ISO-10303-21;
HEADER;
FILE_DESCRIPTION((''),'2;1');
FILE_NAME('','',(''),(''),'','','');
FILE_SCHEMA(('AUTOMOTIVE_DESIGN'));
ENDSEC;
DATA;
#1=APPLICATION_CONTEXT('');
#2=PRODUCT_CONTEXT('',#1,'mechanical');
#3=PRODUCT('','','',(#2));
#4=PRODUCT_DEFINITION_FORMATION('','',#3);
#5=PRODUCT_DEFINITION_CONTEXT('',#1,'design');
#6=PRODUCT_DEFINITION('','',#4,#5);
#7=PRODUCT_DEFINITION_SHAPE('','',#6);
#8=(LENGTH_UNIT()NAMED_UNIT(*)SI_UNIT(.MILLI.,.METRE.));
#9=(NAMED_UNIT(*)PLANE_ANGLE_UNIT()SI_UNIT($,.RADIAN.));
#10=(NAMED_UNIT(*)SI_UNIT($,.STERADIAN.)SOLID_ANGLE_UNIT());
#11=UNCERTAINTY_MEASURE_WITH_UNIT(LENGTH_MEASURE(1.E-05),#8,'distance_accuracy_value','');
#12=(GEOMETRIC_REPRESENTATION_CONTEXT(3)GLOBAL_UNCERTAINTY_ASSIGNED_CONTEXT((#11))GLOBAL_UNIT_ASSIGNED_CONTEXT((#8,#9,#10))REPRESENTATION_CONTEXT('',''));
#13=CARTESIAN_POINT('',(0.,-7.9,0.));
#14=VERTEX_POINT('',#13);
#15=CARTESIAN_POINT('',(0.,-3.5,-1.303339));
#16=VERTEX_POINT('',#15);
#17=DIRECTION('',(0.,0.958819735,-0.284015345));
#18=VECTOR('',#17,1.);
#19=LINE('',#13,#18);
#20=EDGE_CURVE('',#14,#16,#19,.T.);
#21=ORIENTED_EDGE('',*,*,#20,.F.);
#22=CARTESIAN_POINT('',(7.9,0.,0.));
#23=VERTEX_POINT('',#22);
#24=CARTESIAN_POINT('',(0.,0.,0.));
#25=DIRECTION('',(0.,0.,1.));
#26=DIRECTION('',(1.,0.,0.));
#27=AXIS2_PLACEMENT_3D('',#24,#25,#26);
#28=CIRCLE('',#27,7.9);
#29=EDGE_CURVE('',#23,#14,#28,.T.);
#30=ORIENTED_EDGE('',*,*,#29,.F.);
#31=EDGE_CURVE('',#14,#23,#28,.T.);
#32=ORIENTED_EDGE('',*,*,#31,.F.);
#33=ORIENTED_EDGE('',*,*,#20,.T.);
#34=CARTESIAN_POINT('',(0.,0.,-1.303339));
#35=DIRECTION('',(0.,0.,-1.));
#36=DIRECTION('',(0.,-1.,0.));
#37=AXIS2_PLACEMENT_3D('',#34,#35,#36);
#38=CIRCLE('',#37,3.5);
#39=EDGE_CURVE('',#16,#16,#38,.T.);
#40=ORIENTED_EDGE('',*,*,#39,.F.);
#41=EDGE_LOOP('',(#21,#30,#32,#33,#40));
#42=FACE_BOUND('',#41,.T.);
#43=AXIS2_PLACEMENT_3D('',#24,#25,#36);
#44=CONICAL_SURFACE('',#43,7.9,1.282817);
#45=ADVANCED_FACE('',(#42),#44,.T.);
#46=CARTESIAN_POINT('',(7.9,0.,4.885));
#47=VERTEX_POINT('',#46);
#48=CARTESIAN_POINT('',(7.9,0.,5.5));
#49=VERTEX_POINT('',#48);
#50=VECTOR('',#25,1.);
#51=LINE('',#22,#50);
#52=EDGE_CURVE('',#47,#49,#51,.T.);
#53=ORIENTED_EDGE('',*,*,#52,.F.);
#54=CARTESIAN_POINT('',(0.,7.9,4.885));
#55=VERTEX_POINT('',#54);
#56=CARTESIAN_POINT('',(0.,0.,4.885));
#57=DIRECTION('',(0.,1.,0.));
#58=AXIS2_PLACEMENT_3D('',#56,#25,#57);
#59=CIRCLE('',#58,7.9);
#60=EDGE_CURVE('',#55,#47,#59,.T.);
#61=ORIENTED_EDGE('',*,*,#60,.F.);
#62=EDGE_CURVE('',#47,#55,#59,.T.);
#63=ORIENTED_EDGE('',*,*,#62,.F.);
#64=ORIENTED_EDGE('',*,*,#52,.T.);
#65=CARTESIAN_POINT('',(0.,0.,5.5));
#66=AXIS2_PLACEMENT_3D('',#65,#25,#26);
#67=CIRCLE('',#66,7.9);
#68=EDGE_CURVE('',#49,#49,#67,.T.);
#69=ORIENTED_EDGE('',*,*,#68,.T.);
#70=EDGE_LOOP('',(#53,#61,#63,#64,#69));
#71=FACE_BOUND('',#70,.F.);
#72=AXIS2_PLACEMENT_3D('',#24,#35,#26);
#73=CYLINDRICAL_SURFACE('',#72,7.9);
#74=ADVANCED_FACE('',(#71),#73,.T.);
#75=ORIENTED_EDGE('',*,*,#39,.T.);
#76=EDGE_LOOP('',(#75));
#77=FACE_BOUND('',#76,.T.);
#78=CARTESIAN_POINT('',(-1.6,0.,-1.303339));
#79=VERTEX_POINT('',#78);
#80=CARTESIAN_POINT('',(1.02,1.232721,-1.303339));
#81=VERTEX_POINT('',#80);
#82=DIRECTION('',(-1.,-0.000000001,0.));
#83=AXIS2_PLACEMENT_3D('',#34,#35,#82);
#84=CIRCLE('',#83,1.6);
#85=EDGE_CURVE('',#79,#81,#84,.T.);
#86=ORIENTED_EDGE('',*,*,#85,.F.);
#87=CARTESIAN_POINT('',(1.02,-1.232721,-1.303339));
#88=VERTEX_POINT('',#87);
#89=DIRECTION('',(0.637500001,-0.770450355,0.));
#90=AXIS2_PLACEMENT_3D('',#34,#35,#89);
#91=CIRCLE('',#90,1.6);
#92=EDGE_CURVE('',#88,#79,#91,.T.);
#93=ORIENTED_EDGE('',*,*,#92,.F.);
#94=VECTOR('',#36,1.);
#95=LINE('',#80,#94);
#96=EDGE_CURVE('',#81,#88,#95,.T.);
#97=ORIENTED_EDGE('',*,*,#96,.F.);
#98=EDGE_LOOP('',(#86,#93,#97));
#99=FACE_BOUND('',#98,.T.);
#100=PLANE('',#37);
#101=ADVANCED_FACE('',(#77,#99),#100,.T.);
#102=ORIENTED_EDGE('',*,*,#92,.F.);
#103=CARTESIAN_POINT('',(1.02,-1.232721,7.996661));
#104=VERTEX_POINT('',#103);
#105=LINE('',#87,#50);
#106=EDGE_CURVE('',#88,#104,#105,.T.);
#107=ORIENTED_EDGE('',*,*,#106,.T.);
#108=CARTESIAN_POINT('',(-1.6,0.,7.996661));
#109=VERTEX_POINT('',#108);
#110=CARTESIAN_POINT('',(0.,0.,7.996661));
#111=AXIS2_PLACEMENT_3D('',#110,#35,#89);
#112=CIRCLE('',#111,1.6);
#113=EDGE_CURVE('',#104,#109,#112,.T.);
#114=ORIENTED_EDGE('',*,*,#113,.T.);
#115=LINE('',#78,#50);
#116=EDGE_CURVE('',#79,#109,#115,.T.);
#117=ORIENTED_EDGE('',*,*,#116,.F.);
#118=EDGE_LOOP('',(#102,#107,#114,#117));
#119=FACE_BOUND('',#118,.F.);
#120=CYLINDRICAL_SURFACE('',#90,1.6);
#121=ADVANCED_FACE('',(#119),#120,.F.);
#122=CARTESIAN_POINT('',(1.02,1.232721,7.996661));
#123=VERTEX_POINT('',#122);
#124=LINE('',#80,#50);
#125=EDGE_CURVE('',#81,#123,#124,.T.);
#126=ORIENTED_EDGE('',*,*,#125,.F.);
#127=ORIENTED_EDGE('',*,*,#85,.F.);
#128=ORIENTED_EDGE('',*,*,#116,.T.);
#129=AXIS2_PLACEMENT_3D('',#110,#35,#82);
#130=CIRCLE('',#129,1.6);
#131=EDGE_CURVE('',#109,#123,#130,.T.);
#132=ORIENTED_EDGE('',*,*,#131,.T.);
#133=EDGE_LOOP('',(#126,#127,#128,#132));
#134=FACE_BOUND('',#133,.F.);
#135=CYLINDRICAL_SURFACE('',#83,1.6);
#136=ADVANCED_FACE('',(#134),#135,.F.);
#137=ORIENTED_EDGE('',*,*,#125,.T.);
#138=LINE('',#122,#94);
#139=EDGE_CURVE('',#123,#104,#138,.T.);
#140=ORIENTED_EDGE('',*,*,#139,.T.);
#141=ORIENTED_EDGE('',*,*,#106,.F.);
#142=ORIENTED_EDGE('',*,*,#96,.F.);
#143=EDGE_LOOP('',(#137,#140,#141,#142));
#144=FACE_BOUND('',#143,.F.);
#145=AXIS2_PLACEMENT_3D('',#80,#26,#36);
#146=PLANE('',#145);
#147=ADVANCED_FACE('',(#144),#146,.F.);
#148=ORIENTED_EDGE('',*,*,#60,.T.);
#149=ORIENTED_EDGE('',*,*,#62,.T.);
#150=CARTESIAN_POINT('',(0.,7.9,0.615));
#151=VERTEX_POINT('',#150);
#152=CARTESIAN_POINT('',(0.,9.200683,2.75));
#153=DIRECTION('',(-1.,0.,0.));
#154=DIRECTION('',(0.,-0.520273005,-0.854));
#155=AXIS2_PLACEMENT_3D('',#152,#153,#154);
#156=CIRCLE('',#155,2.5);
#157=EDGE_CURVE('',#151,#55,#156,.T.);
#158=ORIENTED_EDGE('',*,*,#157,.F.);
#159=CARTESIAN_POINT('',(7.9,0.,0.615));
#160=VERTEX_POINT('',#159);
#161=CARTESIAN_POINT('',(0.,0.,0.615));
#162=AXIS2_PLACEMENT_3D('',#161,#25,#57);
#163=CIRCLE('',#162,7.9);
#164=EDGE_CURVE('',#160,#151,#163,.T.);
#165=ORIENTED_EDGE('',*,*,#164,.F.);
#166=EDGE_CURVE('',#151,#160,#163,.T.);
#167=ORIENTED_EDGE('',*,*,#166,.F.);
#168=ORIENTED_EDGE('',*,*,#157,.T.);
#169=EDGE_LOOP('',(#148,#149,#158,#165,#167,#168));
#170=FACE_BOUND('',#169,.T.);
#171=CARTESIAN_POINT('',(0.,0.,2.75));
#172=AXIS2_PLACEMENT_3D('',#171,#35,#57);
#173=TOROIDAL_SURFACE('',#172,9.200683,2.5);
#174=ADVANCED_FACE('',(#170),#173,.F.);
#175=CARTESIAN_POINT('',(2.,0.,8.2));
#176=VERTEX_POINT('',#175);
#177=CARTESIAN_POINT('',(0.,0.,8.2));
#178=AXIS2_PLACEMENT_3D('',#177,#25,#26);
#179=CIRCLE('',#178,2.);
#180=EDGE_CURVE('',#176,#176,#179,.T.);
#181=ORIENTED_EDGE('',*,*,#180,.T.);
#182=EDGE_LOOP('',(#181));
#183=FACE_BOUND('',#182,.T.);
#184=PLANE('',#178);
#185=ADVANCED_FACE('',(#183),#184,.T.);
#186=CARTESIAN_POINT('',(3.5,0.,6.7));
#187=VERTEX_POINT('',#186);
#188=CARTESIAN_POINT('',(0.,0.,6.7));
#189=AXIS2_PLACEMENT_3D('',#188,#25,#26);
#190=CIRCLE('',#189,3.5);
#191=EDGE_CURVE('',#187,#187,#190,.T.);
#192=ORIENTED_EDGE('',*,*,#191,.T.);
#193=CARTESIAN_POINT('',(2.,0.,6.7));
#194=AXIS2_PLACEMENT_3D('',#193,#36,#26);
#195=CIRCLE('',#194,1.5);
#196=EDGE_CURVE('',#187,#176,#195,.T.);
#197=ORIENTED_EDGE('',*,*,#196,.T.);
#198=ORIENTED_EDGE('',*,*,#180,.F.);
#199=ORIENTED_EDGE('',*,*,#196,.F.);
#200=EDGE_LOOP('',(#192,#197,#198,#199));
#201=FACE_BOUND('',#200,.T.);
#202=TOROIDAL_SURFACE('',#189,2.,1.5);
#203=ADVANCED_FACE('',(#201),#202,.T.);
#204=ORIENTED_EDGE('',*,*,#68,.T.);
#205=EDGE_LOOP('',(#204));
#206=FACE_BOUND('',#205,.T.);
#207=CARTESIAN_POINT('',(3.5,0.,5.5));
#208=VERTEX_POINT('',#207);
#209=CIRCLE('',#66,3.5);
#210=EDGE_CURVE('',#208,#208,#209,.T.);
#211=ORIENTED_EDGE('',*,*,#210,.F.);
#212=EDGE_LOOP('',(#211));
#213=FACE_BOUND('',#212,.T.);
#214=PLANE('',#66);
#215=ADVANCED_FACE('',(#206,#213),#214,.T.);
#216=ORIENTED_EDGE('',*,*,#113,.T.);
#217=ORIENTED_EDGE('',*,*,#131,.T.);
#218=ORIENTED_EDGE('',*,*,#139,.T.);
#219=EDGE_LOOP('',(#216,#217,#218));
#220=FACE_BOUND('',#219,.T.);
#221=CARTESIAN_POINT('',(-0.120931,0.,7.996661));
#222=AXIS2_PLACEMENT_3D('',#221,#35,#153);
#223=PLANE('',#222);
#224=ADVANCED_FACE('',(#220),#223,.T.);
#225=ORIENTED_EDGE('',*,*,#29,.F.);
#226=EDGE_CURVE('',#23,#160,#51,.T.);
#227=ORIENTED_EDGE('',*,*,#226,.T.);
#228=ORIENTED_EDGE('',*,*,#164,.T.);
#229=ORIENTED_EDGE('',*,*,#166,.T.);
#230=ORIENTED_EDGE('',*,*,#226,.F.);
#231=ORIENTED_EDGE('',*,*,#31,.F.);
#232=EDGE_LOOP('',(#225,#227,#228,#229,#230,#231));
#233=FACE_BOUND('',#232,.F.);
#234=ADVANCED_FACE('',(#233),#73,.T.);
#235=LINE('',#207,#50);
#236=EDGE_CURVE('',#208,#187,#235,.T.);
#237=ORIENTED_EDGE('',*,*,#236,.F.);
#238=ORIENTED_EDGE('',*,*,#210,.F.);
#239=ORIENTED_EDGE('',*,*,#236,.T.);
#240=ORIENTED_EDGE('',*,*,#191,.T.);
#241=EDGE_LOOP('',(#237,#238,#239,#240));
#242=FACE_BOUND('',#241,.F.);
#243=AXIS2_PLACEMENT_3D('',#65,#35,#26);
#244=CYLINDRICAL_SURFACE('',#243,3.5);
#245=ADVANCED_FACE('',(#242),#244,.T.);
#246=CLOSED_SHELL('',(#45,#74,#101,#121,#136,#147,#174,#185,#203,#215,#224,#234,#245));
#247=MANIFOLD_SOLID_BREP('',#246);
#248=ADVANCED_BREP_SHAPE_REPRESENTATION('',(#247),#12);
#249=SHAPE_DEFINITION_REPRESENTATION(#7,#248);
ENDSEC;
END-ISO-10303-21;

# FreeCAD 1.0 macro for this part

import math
import FreeCAD as App
import Part
import Sketcher
Q = App.Units.Quantity


def edges_at(feature, points):
    """Names of the edges that pass closest to the given points."""
    edges = feature.Shape.Edges
    near = lambda p: min(range(len(edges)), key=lambda i: edges[i].distToShape(Part.Vertex(*p))[0])
    return sorted({f"Edge{near(p) + 1}" for p in points})


def add_polygon(sketch, points):
    """Adds a closed chain of lines whose ends are joined by coincident constraints."""
    first, n = sketch.GeometryCount, len(points)
    for a, b in zip(points, points[1:] + points[:1]):
        sketch.addGeometry(Part.LineSegment(App.Vector(*a, 0), App.Vector(*b, 0)), False)
    for i in range(n):
        sketch.addConstraint(Sketcher.Constraint("Coincident", first + i, 2, first + (i + 1) % n, 1))

doc = App.newDocument("Part")
body = doc.addObject("PartDesign::Body", "Body")

sketch1 = body.newObject("Sketcher::SketchObject", "Sketch")
sketch1.AttachmentSupport = (doc.getObject("XY_Plane"), [""])
sketch1.MapMode = "FlatFace"
sketch1.addGeometry(Part.Circle(App.Vector(0, 0, 0), App.Vector(0, 0, 1), 7.9), False)
sketch1.addConstraint([
    Sketcher.Constraint("Coincident", 0, 3, -1, 1),
    Sketcher.Constraint("Diameter", 0, 15.8),
])
pad1 = body.newObject("PartDesign::Pad", "Pad")
pad1.Profile = sketch1
pad1.Length = 5.5

sketch2 = body.newObject("Sketcher::SketchObject", "Sketch001")
sketch2.AttachmentSupport = (doc.getObject("XY_Plane"), [""])
sketch2.MapMode = "FlatFace"
sketch2.AttachmentOffset = App.Placement(App.Vector(0, 0, 5.5), App.Rotation())
sketch2.addGeometry(Part.Circle(App.Vector(0, 0, 0), App.Vector(0, 0, 1), 3.5), False)
sketch2.addConstraint([
    Sketcher.Constraint("Coincident", 0, 3, -1, 1),
    Sketcher.Constraint("Diameter", 0, 7.0),
])
pad2 = body.newObject("PartDesign::Pad", "Pad001")
pad2.Profile = sketch2
pad2.Length = 2.7

sketch3 = body.newObject("Sketcher::SketchObject", "Sketch002")
sketch3.AttachmentSupport = (doc.getObject("YZ_Plane"), [""])
sketch3.MapMode = "FlatFace"
add_polygon(sketch3, [(-7.9, 0), (-3.5, -1.303339), (0, -1.303339), (0, 0)])
sketch3.addConstraint([
    Sketcher.Constraint("Horizontal", 1),
    Sketcher.Constraint("Vertical", 2),
    Sketcher.Constraint("Horizontal", 3),
    Sketcher.Constraint("Coincident", 2, 2, -1, 1),
    Sketcher.Constraint("DistanceX", 1, 1, 1, 2, 3.5),
    Sketcher.Constraint("DistanceX", 3, 2, 3, 1, 7.9),
    Sketcher.Constraint("Angle", 0, Q("-16.5 deg")),
])
revolution = body.newObject("PartDesign::Revolution", "Revolution")
revolution.Profile = sketch3
revolution.ReferenceAxis = (sketch3, ["V_Axis"])
revolution.Angle = 360

sketch4 = body.newObject("Sketcher::SketchObject", "Sketch003")
sketch4.AttachmentSupport = (doc.getObject("XY_Plane"), [""])
sketch4.MapMode = "FlatFace"
sketch4.AttachmentOffset = App.Placement(App.Vector(0, 0, -1.303339), App.Rotation())
sketch4.addGeometry([
    Part.ArcOfCircle(Part.Circle(App.Vector(0, 0, 0), App.Vector(0, 0, 1), 1.6), math.radians(50.394348), math.radians(180)),
    Part.LineSegment(App.Vector(1.02, 1.232721, 0), App.Vector(1.02, -1.232721, 0)),
    Part.ArcOfCircle(Part.Circle(App.Vector(0, 0, 0), App.Vector(0, 0, 1), 1.6), math.radians(180), math.radians(309.605652)),
], False)
sketch4.addConstraint([
    Sketcher.Constraint("Coincident", 0, 1, 1, 1),
    Sketcher.Constraint("Coincident", 1, 2, 2, 2),
    Sketcher.Constraint("Tangent", 2, 1, 0, 2),
    Sketcher.Constraint("Vertical", 1),
    Sketcher.Constraint("Coincident", 0, 3, -1, 1),
    Sketcher.Constraint("Equal", 0, 2),
    Sketcher.Constraint("PointOnObject", 2, 1, -1),
    Sketcher.Constraint("Radius", 0, 1.6),
    Sketcher.Constraint("DistanceX", -1, 1, 0, 1, 1.02),
])
pocket1 = body.newObject("PartDesign::Pocket", "Pocket")
pocket1.Profile = sketch4
pocket1.Length = 9.3
pocket1.Reversed = True
doc.recompute()

fillet = body.newObject("PartDesign::Fillet", "Fillet")
fillet.Base = (pocket1, edges_at(pocket1, [(-3.5, 0, 8.2)]))
fillet.Radius = 1.5

sketch5 = body.newObject("Sketcher::SketchObject", "Sketch004")
sketch5.AttachmentSupport = (doc.getObject("YZ_Plane"), [""])
sketch5.MapMode = "FlatFace"
sketch5.addGeometry([
    Part.LineSegment(App.Vector(7.9, 0.615, 0), App.Vector(7.9, 4.885, 0)),
    Part.ArcOfCircle(Part.Circle(App.Vector(9.200683, 2.75, 0), App.Vector(0, 0, 1), 2.5), math.radians(121.350566), math.radians(238.649434)),
], False)
sketch5.addConstraint([
    Sketcher.Constraint("Coincident", 0, 1, 1, 2),
    Sketcher.Constraint("Coincident", 1, 1, 0, 2),
    Sketcher.Constraint("Vertical", 0),
    Sketcher.Constraint("Radius", 1, 2.5),
    Sketcher.Constraint("DistanceY", 0, 1, 0, 2, 4.27),
    Sketcher.Constraint("DistanceX", -1, 1, 0, 1, 7.9),
    Sketcher.Constraint("DistanceY", -1, 1, 1, 3, 2.75),
])
groove = body.newObject("PartDesign::Groove", "Groove")
groove.Profile = sketch5
groove.ReferenceAxis = (sketch5, ["V_Axis"])
groove.Angle = 360

doc.recompute()
